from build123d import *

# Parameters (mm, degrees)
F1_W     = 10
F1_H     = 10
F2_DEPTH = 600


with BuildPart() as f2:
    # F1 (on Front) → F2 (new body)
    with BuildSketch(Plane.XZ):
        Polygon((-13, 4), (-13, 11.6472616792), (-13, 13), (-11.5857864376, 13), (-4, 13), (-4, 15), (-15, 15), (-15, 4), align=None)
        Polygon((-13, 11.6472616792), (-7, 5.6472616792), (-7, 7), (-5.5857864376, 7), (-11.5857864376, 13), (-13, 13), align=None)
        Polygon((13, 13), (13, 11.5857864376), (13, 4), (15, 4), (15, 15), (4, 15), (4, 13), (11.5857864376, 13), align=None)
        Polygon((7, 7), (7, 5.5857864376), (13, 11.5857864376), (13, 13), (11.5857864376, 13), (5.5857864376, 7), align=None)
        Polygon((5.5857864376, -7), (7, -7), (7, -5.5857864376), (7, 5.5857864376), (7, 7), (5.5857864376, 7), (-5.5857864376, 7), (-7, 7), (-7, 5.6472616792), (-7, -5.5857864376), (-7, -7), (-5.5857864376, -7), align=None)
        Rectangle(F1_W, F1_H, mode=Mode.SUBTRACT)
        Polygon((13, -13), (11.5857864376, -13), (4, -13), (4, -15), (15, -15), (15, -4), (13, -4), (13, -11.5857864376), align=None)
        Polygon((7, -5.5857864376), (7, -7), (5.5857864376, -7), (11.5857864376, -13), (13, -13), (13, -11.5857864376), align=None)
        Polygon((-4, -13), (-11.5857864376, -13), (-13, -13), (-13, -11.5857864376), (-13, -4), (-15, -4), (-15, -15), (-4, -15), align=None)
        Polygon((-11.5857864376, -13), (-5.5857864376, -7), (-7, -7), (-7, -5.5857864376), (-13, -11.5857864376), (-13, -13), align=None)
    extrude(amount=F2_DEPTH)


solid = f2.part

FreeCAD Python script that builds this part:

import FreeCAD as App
import Part
import Sketcher
from FreeCAD import Vector


def add_polygon(sketch, points):
    """Adds a closed chain of lines whose ends are joined by coincident constraints."""
    first, n = sketch.GeometryCount, len(points)
    for a, b in zip(points, points[1:] + points[:1]):
        sketch.addGeometry(Part.LineSegment(App.Vector(*a, 0), App.Vector(*b, 0)), False)
    for i in range(n):
        sketch.addConstraint(Sketcher.Constraint("Coincident", first + i, 2, first + (i + 1) % n, 1))

doc = App.newDocument("Part")
body = doc.addObject("PartDesign::Body", "Body")

# Sketch on XZ plane
sketch1 = doc.addObject("Sketcher::SketchObject", "Sketch")
body.addObject(sketch1)
sketch1.AttachmentSupport = (doc.XZ_Plane, [""])
sketch1.MapMode = "FlatFace"
add_polygon(sketch1, [(-13, 4), (-13, 11.647262), (-7, 5.647262), (-7, -5.585786), (-13, -11.585786), (-13, -4), (-15, -4), (-15, -15), (-4, -15), (-4, -13), (-11.585786, -13), (-5.585786, -7), (5.585786, -7), (11.585786, -13), (4, -13), (4, -15), (15, -15), (15, -4), (13, -4), (13, -11.585786), (7, -5.585786), (7, 5.585786), (13, 11.585786), (13, 4), (15, 4), (15, 15), (4, 15), (4, 13), (11.585786, 13), (5.585786, 7), (-5.585786, 7), (-11.585786, 13), (-4, 13), (-4, 15), (-15, 15), (-15, 4)])  # lines 0-35
add_polygon(sketch1, [(5, -5), (-5, -5), (-5, 5), (5, 5)])  # lines 36-39
sketch1.addConstraint(Sketcher.Constraint("Vertical", 0))
sketch1.addConstraint(Sketcher.Constraint("Vertical", 2))
sketch1.addConstraint(Sketcher.Constraint("Vertical", 4))
sketch1.addConstraint(Sketcher.Constraint("Horizontal", 5))
sketch1.addConstraint(Sketcher.Constraint("Vertical", 6))
sketch1.addConstraint(Sketcher.Constraint("Horizontal", 7))
sketch1.addConstraint(Sketcher.Constraint("Vertical", 8))
sketch1.addConstraint(Sketcher.Constraint("Horizontal", 9))
sketch1.addConstraint(Sketcher.Constraint("Horizontal", 11))
sketch1.addConstraint(Sketcher.Constraint("Horizontal", 13))
sketch1.addConstraint(Sketcher.Constraint("Vertical", 14))
sketch1.addConstraint(Sketcher.Constraint("Horizontal", 15))
sketch1.addConstraint(Sketcher.Constraint("Vertical", 16))
sketch1.addConstraint(Sketcher.Constraint("Horizontal", 17))
sketch1.addConstraint(Sketcher.Constraint("Vertical", 18))
sketch1.addConstraint(Sketcher.Constraint("Vertical", 20))
sketch1.addConstraint(Sketcher.Constraint("Vertical", 22))
sketch1.addConstraint(Sketcher.Constraint("Horizontal", 23))
sketch1.addConstraint(Sketcher.Constraint("Vertical", 24))
sketch1.addConstraint(Sketcher.Constraint("Horizontal", 25))
sketch1.addConstraint(Sketcher.Constraint("Vertical", 26))
sketch1.addConstraint(Sketcher.Constraint("Horizontal", 27))
sketch1.addConstraint(Sketcher.Constraint("Horizontal", 29))
sketch1.addConstraint(Sketcher.Constraint("Horizontal", 31))
sketch1.addConstraint(Sketcher.Constraint("Vertical", 32))
sketch1.addConstraint(Sketcher.Constraint("Horizontal", 33))
sketch1.addConstraint(Sketcher.Constraint("Vertical", 34))
sketch1.addConstraint(Sketcher.Constraint("Horizontal", 35))
sketch1.addConstraint(Sketcher.Constraint("Horizontal", 36))
sketch1.addConstraint(Sketcher.Constraint("Vertical", 37))
sketch1.addConstraint(Sketcher.Constraint("Horizontal", 38))
sketch1.addConstraint(Sketcher.Constraint("Vertical", 39))
sketch1.addConstraint(Sketcher.Constraint("Symmetric", 2, 2, 20, 2, -1, 1))
sketch1.addConstraint(Sketcher.Constraint("Symmetric", 3, 2, 21, 2, -1, 1))
sketch1.addConstraint(Sketcher.Constraint("Symmetric", 5, 2, 23, 2, -1, 1))
sketch1.addConstraint(Sketcher.Constraint("Symmetric", 7, 2, 25, 2, -1, 1))
sketch1.addConstraint(Sketcher.Constraint("Symmetric", 9, 2, 27, 2, -1, 1))
sketch1.addConstraint(Sketcher.Constraint("Symmetric", 10, 2, 28, 2, -1, 1))
sketch1.addConstraint(Sketcher.Constraint("Symmetric", 12, 2, 30, 2, -1, 1))
sketch1.addConstraint(Sketcher.Constraint("Symmetric", 14, 2, 32, 2, -1, 1))
sketch1.addConstraint(Sketcher.Constraint("Symmetric", 16, 2, 34, 2, -1, 1))
sketch1.addConstraint(Sketcher.Constraint("Symmetric", 36, 2, 38, 2, -1, 1))
sketch1.addConstraint(Sketcher.Constraint("Symmetric", 9, 2, 12, 2, -2))
sketch1.addConstraint(Sketcher.Constraint("Symmetric", 7, 2, 14, 2, -2))
sketch1.addConstraint(Sketcher.Constraint("Symmetric", 5, 2, 16, 2, -2))
sketch1.addConstraint(Sketcher.Constraint("Symmetric", 3, 2, 18, 2, -2))
sketch1.addConstraint(Sketcher.Constraint("Perpendicular", 1, 3))
sketch1.addConstraint(Sketcher.Constraint("Parallel", 3, 10))
sketch1.addConstraint(Sketcher.Constraint("Perpendicular", 10, 12))
sketch1.addConstraint(Sketcher.Constraint("Parallel", 12, 19))
sketch1.addConstraint(Sketcher.Constraint("Perpendicular", 28, 30))
sketch1.addConstraint(Sketcher.Constraint("Horizontal", 2, 2, 19, 2))
sketch1.addConstraint(Sketcher.Constraint("Vertical", 0, 2, 3, 2))
sketch1.addConstraint(Sketcher.Constraint("Equal", 31, 4))
sketch1.addConstraint(Sketcher.Constraint("Equal", 33, 6))
sketch1.addConstraint(Sketcher.Constraint("Equal", 35, 8))
sketch1.addConstraint(Sketcher.Constraint("Equal", 29, 20))
sketch1.addConstraint(Sketcher.Constraint("Equal", 38, 37))
sketch1.addConstraint(Sketcher.Constraint("Equal", 3, 10))
sketch1.addConstraint(Sketcher.Constraint("DistanceX", 5, 2, 5, 1, 2.0))
sketch1.addConstraint(Sketcher.Constraint("DistanceX", 7, 1, 7, 2, 11.0))
sketch1.addConstraint(Sketcher.Constraint("DistanceX", 36, 2, 36, 1, 10.0))
sketch1.addConstraint(Sketcher.Constraint("DistanceX", 0, 2, -1, 1, 13.0))
sketch1.addConstraint(Sketcher.Constraint("DistanceX", 1, 2, -1, 1, 7.0))
sketch1.addConstraint(Sketcher.Constraint("DistanceY", 0, 1, 0, 2, 7.647262))
sketch1.addConstraint(Sketcher.Constraint("DistanceY", 2, 2, 2, 1, 11.233048))
pad1 = doc.addObject("PartDesign::Pad", "Pad")
body.addObject(pad1)
pad1.Profile = sketch1
pad1.Length = 600

doc.recompute()
